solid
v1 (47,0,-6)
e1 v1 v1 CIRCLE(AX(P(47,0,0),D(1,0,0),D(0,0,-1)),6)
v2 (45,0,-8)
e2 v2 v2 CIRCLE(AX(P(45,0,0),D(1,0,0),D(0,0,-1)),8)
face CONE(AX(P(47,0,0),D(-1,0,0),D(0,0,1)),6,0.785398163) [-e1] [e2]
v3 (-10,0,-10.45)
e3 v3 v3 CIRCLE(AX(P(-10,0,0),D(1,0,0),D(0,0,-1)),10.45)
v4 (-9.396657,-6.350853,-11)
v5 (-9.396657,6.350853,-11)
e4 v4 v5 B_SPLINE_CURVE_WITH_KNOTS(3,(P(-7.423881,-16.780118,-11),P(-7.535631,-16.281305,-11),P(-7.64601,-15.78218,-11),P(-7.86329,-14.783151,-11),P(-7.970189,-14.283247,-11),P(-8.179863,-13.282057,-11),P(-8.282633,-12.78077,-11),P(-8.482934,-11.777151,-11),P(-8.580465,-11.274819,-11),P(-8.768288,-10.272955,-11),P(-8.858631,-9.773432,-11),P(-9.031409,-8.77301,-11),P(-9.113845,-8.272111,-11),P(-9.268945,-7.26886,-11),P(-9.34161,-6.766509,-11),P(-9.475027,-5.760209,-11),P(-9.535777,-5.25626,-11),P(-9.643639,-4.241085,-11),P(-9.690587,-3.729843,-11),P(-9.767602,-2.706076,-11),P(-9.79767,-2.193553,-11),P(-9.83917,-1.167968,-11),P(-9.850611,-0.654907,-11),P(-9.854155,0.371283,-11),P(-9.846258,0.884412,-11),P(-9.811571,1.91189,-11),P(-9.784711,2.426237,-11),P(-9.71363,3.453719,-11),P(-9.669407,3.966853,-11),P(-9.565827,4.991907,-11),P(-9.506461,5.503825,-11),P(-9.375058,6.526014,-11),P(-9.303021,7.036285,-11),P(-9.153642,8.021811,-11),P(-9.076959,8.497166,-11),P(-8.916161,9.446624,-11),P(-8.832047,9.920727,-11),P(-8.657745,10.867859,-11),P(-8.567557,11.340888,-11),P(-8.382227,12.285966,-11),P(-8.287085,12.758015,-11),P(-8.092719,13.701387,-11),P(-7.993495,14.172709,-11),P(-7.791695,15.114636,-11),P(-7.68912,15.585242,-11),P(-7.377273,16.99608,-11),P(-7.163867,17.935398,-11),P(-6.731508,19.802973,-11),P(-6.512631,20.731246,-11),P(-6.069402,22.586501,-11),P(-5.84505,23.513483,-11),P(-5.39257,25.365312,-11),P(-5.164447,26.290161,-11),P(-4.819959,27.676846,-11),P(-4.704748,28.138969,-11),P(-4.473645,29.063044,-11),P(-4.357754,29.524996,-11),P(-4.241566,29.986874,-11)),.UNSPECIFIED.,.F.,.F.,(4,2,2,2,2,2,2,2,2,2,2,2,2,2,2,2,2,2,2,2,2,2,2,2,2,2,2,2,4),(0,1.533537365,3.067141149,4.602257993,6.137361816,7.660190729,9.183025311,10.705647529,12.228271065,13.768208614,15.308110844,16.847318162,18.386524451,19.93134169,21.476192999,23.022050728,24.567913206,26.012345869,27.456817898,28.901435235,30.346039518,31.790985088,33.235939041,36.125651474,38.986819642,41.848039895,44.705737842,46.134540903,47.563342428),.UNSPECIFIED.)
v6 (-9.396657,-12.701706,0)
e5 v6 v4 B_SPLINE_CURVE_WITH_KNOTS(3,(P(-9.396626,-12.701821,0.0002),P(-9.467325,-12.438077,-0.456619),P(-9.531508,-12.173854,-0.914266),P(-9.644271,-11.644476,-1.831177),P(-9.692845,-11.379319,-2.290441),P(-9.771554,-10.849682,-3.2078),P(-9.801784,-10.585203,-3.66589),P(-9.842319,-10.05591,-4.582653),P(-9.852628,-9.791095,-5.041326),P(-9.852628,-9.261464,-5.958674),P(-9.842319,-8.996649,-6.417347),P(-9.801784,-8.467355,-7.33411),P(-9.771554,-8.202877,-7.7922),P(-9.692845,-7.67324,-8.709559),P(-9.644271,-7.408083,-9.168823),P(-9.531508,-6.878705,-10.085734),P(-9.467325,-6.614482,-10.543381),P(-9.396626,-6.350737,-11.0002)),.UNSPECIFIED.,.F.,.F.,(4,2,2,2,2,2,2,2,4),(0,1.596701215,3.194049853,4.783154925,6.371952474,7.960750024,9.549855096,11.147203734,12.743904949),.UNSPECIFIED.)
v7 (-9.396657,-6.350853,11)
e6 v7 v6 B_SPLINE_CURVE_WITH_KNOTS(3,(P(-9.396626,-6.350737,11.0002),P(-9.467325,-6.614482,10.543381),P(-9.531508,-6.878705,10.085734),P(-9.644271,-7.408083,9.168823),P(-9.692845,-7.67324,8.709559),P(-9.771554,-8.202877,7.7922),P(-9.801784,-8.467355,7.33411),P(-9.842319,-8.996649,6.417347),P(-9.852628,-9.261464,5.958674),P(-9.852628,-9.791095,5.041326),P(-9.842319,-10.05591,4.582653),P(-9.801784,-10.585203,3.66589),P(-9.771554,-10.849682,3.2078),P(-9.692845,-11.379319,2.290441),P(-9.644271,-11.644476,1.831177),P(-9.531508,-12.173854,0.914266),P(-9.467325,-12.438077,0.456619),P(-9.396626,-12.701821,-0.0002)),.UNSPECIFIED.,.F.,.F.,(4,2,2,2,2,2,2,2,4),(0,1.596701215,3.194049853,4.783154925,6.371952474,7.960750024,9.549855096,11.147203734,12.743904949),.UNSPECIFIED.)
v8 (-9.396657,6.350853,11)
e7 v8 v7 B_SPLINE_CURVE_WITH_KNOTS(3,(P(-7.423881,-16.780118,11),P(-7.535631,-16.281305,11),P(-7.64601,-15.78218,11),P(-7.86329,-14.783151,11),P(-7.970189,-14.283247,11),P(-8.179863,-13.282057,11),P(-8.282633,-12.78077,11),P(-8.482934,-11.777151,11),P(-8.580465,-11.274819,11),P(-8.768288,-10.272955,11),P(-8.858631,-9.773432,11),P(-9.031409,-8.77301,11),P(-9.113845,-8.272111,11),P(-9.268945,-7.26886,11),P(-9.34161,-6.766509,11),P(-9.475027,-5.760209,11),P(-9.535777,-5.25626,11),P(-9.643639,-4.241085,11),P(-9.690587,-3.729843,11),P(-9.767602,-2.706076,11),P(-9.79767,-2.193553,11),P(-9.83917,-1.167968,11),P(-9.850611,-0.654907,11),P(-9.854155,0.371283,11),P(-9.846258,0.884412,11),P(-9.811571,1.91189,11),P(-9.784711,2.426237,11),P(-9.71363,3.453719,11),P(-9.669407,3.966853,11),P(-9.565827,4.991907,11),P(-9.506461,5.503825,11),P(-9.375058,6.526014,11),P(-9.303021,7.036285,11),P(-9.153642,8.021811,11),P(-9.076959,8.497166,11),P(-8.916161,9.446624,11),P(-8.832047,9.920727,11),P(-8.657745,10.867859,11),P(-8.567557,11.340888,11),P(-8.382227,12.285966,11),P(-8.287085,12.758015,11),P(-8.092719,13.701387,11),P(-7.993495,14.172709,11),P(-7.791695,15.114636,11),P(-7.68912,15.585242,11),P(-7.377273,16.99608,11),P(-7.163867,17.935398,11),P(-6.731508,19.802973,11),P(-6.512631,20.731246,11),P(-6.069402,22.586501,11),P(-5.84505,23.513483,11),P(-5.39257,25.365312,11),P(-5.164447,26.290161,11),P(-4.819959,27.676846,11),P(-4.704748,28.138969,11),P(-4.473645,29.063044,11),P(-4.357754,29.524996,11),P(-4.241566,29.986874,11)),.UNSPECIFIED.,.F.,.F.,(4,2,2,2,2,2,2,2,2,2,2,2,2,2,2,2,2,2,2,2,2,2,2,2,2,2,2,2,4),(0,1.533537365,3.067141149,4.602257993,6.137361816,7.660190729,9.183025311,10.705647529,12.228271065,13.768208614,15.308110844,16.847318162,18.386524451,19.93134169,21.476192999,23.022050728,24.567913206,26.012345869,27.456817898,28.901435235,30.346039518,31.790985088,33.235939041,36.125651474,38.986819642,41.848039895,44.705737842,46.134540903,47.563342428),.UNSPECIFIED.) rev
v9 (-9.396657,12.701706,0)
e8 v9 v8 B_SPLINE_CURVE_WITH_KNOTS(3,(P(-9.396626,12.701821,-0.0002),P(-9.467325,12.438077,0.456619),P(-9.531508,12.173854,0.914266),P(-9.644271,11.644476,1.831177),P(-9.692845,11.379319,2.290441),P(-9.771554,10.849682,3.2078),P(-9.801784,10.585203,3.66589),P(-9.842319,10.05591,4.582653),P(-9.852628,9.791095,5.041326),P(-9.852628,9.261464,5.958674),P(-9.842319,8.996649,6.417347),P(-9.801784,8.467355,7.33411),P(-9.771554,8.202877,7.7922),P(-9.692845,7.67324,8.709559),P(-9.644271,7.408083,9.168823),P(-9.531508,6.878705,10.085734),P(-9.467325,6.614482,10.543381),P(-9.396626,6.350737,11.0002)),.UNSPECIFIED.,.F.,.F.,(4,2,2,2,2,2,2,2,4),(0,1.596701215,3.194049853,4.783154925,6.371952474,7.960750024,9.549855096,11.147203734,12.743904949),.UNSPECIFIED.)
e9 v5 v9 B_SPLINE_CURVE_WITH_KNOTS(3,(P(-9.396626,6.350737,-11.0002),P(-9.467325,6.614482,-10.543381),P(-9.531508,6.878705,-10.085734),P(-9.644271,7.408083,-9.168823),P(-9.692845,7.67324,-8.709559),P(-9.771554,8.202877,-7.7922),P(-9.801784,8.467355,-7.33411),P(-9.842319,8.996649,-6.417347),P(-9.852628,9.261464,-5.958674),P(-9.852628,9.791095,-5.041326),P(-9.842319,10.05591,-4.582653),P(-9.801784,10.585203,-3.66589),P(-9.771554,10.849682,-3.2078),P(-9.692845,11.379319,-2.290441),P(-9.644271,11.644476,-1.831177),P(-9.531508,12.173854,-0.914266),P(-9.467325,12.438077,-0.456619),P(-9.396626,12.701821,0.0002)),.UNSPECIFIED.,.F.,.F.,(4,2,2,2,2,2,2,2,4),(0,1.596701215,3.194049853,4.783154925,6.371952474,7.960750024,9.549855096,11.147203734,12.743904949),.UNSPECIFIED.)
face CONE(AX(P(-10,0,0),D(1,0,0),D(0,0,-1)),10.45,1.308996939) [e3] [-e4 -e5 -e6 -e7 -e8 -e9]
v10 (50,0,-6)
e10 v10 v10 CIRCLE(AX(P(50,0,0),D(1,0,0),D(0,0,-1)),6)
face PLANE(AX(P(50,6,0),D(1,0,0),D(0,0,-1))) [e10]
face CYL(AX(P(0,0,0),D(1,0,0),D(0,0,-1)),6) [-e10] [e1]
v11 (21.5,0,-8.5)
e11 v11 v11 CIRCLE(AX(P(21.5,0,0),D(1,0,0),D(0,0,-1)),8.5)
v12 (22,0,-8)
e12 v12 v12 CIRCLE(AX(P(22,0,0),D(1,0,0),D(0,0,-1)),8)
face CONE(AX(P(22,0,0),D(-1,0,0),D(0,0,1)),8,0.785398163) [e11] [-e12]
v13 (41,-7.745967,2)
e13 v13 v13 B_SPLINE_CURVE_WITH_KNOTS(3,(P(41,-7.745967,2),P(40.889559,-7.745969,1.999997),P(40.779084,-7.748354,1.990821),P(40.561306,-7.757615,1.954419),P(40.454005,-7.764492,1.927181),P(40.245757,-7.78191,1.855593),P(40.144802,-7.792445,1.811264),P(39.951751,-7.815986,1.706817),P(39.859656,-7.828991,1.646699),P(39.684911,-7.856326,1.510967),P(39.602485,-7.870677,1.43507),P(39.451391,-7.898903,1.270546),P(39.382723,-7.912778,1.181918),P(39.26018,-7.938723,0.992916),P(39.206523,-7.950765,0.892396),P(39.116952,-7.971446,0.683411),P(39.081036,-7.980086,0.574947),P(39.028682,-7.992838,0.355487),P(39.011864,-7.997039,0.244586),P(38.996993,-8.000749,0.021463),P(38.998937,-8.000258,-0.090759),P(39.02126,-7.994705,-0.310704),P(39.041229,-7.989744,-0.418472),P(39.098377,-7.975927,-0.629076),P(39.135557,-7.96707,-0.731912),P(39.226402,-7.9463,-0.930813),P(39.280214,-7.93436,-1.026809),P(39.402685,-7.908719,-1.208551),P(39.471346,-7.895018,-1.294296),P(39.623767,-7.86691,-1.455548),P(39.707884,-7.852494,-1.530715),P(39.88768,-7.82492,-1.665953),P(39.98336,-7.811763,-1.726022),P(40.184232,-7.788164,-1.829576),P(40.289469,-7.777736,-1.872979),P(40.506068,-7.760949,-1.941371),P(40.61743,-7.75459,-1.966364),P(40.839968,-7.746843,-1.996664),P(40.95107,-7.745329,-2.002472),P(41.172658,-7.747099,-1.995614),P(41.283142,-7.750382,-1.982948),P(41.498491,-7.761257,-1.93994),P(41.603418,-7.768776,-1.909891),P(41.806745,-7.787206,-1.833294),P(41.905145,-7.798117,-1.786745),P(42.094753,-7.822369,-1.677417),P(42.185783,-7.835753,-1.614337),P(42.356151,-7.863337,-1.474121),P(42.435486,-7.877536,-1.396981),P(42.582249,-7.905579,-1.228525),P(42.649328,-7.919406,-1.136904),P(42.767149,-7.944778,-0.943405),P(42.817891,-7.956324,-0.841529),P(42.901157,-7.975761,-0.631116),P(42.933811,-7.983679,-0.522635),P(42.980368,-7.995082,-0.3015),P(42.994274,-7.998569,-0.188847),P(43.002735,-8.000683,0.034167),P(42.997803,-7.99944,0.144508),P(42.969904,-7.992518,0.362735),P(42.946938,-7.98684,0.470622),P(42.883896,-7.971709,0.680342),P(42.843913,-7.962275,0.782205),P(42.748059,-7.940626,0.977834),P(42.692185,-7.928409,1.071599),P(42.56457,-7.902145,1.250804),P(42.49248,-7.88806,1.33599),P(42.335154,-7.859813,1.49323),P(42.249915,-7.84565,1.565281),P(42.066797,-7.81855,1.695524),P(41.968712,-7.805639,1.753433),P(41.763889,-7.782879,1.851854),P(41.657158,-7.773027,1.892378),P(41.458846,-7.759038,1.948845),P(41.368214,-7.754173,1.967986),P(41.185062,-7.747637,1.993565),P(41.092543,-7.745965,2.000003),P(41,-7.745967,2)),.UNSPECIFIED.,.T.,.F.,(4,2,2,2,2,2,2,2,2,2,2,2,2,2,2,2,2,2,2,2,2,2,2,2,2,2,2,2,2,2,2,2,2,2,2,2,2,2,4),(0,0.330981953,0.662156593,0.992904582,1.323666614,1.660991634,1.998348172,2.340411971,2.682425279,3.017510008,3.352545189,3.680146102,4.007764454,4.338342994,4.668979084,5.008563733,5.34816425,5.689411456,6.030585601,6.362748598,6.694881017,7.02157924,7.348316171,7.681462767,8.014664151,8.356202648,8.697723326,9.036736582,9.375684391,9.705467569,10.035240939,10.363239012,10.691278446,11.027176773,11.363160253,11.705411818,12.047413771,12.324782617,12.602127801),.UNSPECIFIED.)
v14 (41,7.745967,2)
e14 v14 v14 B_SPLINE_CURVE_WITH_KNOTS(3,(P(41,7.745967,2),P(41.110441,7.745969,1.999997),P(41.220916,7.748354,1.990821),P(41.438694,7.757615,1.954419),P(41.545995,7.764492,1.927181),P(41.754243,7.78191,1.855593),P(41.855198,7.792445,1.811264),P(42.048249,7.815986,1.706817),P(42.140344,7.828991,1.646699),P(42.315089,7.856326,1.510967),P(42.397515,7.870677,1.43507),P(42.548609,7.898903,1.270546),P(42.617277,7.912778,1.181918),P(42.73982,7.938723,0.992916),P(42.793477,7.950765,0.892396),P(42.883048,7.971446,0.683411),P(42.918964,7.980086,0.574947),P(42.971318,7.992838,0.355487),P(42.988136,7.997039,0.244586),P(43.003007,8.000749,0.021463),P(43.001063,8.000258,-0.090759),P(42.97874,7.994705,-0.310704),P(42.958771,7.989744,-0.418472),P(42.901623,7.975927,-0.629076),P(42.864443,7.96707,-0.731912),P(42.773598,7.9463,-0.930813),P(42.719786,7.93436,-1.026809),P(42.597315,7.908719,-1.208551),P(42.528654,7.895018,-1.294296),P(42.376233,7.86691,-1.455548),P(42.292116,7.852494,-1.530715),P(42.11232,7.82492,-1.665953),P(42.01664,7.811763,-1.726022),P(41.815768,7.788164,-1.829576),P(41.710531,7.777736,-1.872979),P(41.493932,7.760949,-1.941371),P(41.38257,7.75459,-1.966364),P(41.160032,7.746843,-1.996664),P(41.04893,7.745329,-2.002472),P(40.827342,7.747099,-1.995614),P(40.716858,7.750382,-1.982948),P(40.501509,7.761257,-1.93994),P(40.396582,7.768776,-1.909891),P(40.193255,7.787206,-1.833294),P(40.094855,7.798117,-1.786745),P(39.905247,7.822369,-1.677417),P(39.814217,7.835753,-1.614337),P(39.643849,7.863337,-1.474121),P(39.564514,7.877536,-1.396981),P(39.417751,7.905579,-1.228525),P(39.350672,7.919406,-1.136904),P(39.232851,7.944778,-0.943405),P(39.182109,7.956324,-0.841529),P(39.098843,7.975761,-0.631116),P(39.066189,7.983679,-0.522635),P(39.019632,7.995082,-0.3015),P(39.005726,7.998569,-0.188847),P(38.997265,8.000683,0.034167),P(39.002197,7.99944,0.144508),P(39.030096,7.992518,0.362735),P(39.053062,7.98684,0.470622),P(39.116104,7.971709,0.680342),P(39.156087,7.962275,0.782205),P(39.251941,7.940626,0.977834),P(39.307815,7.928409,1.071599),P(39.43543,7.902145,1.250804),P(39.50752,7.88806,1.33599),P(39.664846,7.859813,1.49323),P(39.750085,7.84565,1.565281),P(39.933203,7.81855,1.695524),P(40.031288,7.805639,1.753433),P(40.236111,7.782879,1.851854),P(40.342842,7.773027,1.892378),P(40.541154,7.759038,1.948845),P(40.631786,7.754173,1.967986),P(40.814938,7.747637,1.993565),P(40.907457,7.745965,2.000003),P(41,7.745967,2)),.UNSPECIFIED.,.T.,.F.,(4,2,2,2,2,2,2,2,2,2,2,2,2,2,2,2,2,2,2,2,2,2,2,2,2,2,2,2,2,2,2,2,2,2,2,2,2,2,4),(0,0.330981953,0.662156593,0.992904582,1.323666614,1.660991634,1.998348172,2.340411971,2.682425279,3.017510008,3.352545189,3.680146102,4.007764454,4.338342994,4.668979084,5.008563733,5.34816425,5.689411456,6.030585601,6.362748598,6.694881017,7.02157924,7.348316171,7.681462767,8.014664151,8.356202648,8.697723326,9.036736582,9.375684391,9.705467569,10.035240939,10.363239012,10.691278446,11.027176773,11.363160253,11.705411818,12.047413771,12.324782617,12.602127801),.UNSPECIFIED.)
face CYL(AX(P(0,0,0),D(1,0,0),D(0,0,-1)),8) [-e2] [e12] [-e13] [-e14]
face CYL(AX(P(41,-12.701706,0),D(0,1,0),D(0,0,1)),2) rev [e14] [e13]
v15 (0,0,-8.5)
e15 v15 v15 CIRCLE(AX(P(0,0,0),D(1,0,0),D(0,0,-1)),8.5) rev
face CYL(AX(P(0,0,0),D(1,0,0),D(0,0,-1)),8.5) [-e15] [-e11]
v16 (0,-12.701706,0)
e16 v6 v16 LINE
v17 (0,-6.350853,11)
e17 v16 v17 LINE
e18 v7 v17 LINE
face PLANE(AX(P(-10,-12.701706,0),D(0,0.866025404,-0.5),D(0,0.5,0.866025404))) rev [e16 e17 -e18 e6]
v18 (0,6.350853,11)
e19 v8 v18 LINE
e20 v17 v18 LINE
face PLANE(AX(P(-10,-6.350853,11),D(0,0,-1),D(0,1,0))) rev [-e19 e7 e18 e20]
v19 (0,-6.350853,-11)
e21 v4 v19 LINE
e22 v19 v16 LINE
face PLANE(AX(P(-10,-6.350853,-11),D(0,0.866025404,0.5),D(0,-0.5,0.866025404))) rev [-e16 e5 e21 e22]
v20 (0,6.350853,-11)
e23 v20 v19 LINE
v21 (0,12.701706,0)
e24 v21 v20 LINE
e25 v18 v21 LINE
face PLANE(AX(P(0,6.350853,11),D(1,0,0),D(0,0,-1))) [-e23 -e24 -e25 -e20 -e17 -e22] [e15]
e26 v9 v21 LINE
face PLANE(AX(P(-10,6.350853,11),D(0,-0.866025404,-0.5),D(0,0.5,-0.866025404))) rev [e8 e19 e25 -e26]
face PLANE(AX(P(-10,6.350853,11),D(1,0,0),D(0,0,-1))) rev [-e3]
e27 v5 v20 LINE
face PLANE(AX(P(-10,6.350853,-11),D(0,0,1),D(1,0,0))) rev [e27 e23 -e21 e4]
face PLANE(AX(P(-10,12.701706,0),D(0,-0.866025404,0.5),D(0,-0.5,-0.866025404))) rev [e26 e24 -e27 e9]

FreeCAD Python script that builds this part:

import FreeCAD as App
import Part
import Sketcher
Q = App.Units.Quantity


def add_polygon(sketch, points):
    """Adds a closed chain of lines whose ends are joined by coincident constraints."""
    first, n = sketch.GeometryCount, len(points)
    for a, b in zip(points, points[1:] + points[:1]):
        sketch.addGeometry(Part.LineSegment(App.Vector(*a, 0), App.Vector(*b, 0)), False)
    for i in range(n):
        sketch.addConstraint(Sketcher.Constraint("Coincident", first + i, 2, first + (i + 1) % n, 1))

doc = App.newDocument("Part")
body = doc.addObject("PartDesign::Body", "Body")

# Sketch on XY plane
sketch1 = doc.addObject("Sketcher::SketchObject", "Sketch")
body.addObject(sketch1)
sketch1.AttachmentSupport = (doc.XY_Plane, [""])
sketch1.MapMode = "FlatFace"
add_polygon(sketch1, [(0, 8.5), (0, 0), (50, 0), (50, 6), (47, 6), (45, 8), (22, 8), (21.5, 8.5)])  # lines 0-7
sketch1.addConstraint([
    Sketcher.Constraint("Vertical", 0),
    Sketcher.Constraint("Horizontal", 1),
    Sketcher.Constraint("Vertical", 2),
    Sketcher.Constraint("Horizontal", 3),
    Sketcher.Constraint("Horizontal", 5),
    Sketcher.Constraint("Horizontal", 7),
    Sketcher.Constraint("Coincident", 0, 2, -1, 1),
    Sketcher.Constraint("Parallel", 4, 6),
    Sketcher.Constraint("DistanceX", 1, 1, 1, 2, 50.0),
    Sketcher.Constraint("DistanceX", 3, 2, 3, 1, 3.0),
    Sketcher.Constraint("DistanceX", 5, 2, 5, 1, 23.0),
    Sketcher.Constraint("DistanceY", 2, 1, 2, 2, 6.0),
    Sketcher.Constraint("Angle", 4, Q("135 deg")),
    Sketcher.Constraint("DistanceX", 7, 2, 7, 1, 21.5),
    Sketcher.Constraint("DistanceX", -1, 1, 4, 2, 45.0),
])
revolution = doc.addObject("PartDesign::Revolution", "Revolution")
body.addObject(revolution)
revolution.Profile = sketch1
revolution.ReferenceAxis = (sketch1, ["H_Axis"])
revolution.Angle = 360

# Sketch on YZ plane
sketch2 = doc.addObject("Sketcher::SketchObject", "Sketch001")
body.addObject(sketch2)
sketch2.AttachmentSupport = (doc.YZ_Plane, [""])
sketch2.MapMode = "FlatFace"
add_polygon(sketch2, [(13, 0), (6, -11), (-6, -11), (-13, 0), (-6, 11), (6, 11)])  # lines 0-5
sketch2.addConstraint([
    Sketcher.Constraint("Horizontal", 1),
    Sketcher.Constraint("Horizontal", 4),
    Sketcher.Constraint("Symmetric", 0, 2, 3, 2, -1, 1),
    Sketcher.Constraint("Symmetric", 2, 2, 5, 2, -1, 1),
    Sketcher.Constraint("PointOnObject", 2, 2, -1),
    Sketcher.Constraint("Parallel", 2, 5),
    Sketcher.Constraint("Vertical", 1, 2, 3, 2),
    Sketcher.Constraint("Angle", 0, Q("-120 deg")),
    Sketcher.Constraint("DistanceY", 0, 2, -1, 1, 11.0),
    Sketcher.Constraint("DistanceX", 1, 2, 1, 1, 12.701706),
])
pad1 = doc.addObject("PartDesign::Pad", "Pad")
body.addObject(pad1)
pad1.Profile = sketch2
pad1.Length = 10
pad1.Reversed = True

# Sketch on XY plane
sketch3 = doc.addObject("Sketcher::SketchObject", "Sketch002")
body.addObject(sketch3)
sketch3.AttachmentSupport = (doc.XY_Plane, [""])
sketch3.MapMode = "FlatFace"
add_polygon(sketch3, [(-9.4, 12.7), (-10, 12.7), (-10, 10.4)])  # lines 0-2
sketch3.addConstraint([
    Sketcher.Constraint("Horizontal", 0),
    Sketcher.Constraint("Vertical", 1),
    Sketcher.Constraint("Angle", 2, Q("75 deg")),
    Sketcher.Constraint("DistanceX", 0, 2, -1, 1, 10.0),
    Sketcher.Constraint("DistanceY", -1, 1, 1, 2, 10.45),
    Sketcher.Constraint("DistanceX", 0, 2, 0, 1, 0.603343),
])
groove = doc.addObject("PartDesign::Groove", "Groove")
body.addObject(groove)
groove.Profile = sketch3
groove.ReferenceAxis = (sketch3, ["H_Axis"])
groove.Angle = 360

# Sketch on XZ plane
sketch4 = doc.addObject("Sketcher::SketchObject", "Sketch003")
body.addObject(sketch4)
sketch4.AttachmentSupport = (doc.XZ_Plane, [""])
sketch4.MapMode = "FlatFace"
sketch4.addGeometry(Part.Circle(App.Vector(41, 0, 0), App.Vector(0, 0, 1), 2), False)
sketch4.addConstraint([
    Sketcher.Constraint("PointOnObject", 0, 3, -1),
    Sketcher.Constraint("Diameter", 0, 4.0),
    Sketcher.Constraint("DistanceX", -1, 1, 0, 3, 41.0),
])
pocket1 = doc.addObject("PartDesign::Pocket", "Pocket")
body.addObject(pocket1)
pocket1.Profile = sketch4
pocket1.Type = "ThroughAll"
pocket1.Midplane = True

doc.recompute()
